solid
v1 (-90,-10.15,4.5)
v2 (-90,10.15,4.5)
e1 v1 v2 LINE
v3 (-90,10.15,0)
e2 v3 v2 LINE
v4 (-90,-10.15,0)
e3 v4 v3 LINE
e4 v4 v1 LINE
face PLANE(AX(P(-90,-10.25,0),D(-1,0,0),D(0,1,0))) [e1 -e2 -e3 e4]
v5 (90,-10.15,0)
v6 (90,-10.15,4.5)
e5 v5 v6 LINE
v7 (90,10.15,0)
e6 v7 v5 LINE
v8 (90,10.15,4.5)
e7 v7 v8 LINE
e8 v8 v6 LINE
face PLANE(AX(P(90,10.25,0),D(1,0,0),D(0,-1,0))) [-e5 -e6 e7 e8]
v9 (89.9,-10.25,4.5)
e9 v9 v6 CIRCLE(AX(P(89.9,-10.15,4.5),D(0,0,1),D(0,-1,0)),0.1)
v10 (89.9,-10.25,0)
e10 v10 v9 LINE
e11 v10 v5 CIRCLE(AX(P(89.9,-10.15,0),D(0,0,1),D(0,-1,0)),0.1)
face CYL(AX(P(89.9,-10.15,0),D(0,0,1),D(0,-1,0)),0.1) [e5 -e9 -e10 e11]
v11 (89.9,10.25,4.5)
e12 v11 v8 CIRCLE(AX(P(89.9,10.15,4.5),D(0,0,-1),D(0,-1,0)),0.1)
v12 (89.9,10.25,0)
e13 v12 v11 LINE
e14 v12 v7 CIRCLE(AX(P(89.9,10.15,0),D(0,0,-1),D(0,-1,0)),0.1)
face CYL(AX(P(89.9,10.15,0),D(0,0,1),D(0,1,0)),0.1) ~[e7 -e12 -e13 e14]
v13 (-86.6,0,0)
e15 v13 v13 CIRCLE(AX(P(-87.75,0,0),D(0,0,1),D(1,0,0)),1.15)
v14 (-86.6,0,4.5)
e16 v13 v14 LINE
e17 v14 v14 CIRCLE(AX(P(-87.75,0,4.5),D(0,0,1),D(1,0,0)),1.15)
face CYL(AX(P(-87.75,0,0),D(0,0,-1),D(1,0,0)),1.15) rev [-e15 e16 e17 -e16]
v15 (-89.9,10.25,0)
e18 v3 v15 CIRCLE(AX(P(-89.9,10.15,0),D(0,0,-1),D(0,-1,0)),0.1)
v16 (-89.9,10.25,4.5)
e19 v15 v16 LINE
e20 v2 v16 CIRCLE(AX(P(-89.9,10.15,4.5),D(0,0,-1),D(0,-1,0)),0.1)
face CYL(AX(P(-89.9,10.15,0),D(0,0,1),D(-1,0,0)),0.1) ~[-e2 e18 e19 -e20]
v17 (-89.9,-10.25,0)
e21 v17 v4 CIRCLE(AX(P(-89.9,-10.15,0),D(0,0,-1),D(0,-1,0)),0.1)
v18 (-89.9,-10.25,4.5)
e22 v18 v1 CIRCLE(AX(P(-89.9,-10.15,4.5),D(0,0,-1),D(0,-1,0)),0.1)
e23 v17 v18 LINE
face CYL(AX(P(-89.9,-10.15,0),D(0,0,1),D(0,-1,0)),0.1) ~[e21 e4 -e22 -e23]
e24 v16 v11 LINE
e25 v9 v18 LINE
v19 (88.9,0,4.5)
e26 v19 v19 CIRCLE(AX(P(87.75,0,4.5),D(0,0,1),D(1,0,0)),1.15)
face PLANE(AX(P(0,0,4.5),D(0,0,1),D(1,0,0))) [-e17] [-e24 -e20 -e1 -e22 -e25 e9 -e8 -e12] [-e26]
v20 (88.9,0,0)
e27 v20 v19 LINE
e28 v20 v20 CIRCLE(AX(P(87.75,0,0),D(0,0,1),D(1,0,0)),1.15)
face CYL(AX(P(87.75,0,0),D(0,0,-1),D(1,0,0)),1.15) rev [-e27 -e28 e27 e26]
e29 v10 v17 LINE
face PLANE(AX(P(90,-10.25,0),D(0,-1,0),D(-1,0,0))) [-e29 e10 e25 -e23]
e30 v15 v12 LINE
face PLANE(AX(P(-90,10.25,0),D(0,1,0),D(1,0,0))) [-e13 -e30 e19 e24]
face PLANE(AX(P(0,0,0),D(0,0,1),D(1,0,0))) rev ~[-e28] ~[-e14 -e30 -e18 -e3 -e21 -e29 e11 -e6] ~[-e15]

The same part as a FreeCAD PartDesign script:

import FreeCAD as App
import Part
import Sketcher
from FreeCAD import Vector


def edges_at(feature, points):
    """Names of the edges that pass closest to the given points."""
    edges = feature.Shape.Edges
    near = lambda p: min(range(len(edges)), key=lambda i: edges[i].distToShape(Part.Vertex(*p))[0])
    return sorted({f"Edge{near(p) + 1}" for p in points})


def add_polygon(sketch, points):
    """Adds a closed chain of lines whose ends are joined by coincident constraints."""
    first, n = sketch.GeometryCount, len(points)
    for a, b in zip(points, points[1:] + points[:1]):
        sketch.addGeometry(Part.LineSegment(App.Vector(*a, 0), App.Vector(*b, 0)), False)
    for i in range(n):
        sketch.addConstraint(Sketcher.Constraint("Coincident", first + i, 2, first + (i + 1) % n, 1))

doc = App.newDocument("Part")
body = doc.addObject("PartDesign::Body", "Body")

sketch1 = body.newObject("Sketcher::SketchObject", "Sketch")
sketch1.AttachmentSupport = (doc.getObject("XY_Plane"), [""])
sketch1.MapMode = "FlatFace"
add_polygon(sketch1, [(-90, -10.25), (90, -10.25), (90, 10.25), (-90, 10.25)])
sketch1.addGeometry(Part.Circle(Vector(-87.75, 0, 0), Vector(0, 0, 1), 1.15), False)
sketch1.addGeometry(Part.Circle(Vector(87.75, 0, 0), Vector(0, 0, 1), 1.15), False)
sketch1.addConstraint(Sketcher.Constraint("Horizontal", 0))
sketch1.addConstraint(Sketcher.Constraint("Vertical", 1))
sketch1.addConstraint(Sketcher.Constraint("Horizontal", 2))
sketch1.addConstraint(Sketcher.Constraint("Vertical", 3))
sketch1.addConstraint(Sketcher.Constraint("Equal", 4, 5))
sketch1.addConstraint(Sketcher.Constraint("Symmetric", 4, 3, 5, 3, -1, 1))
sketch1.addConstraint(Sketcher.Constraint("Symmetric", 0, 2, 2, 2, -1, 1))
sketch1.addConstraint(Sketcher.Constraint("PointOnObject", 4, 3, -1))
sketch1.addConstraint(Sketcher.Constraint("Diameter", 4, 2.3))
sketch1.addConstraint(Sketcher.Constraint("DistanceX", 0, 1, 0, 2, 180.0))
sketch1.addConstraint(Sketcher.Constraint("DistanceY", 1, 1, 1, 2, 20.5))
sketch1.addConstraint(Sketcher.Constraint("DistanceX", 5, 3, 0, 2, 2.25))
pad1 = body.newObject("PartDesign::Pad", "Pad")
pad1.Profile = sketch1
pad1.Length = 4.5
doc.recompute()

fillet = body.newObject("PartDesign::Fillet", "Fillet")
fillet.Base = (pad1, edges_at(pad1, [
    (90, -10.25, 2.25),
    (90, 10.25, 2.25),
    (-90, -10.25, 2.25),
    (-90, 10.25, 2.25),
]))
fillet.Radius = 0.1

doc.recompute()
